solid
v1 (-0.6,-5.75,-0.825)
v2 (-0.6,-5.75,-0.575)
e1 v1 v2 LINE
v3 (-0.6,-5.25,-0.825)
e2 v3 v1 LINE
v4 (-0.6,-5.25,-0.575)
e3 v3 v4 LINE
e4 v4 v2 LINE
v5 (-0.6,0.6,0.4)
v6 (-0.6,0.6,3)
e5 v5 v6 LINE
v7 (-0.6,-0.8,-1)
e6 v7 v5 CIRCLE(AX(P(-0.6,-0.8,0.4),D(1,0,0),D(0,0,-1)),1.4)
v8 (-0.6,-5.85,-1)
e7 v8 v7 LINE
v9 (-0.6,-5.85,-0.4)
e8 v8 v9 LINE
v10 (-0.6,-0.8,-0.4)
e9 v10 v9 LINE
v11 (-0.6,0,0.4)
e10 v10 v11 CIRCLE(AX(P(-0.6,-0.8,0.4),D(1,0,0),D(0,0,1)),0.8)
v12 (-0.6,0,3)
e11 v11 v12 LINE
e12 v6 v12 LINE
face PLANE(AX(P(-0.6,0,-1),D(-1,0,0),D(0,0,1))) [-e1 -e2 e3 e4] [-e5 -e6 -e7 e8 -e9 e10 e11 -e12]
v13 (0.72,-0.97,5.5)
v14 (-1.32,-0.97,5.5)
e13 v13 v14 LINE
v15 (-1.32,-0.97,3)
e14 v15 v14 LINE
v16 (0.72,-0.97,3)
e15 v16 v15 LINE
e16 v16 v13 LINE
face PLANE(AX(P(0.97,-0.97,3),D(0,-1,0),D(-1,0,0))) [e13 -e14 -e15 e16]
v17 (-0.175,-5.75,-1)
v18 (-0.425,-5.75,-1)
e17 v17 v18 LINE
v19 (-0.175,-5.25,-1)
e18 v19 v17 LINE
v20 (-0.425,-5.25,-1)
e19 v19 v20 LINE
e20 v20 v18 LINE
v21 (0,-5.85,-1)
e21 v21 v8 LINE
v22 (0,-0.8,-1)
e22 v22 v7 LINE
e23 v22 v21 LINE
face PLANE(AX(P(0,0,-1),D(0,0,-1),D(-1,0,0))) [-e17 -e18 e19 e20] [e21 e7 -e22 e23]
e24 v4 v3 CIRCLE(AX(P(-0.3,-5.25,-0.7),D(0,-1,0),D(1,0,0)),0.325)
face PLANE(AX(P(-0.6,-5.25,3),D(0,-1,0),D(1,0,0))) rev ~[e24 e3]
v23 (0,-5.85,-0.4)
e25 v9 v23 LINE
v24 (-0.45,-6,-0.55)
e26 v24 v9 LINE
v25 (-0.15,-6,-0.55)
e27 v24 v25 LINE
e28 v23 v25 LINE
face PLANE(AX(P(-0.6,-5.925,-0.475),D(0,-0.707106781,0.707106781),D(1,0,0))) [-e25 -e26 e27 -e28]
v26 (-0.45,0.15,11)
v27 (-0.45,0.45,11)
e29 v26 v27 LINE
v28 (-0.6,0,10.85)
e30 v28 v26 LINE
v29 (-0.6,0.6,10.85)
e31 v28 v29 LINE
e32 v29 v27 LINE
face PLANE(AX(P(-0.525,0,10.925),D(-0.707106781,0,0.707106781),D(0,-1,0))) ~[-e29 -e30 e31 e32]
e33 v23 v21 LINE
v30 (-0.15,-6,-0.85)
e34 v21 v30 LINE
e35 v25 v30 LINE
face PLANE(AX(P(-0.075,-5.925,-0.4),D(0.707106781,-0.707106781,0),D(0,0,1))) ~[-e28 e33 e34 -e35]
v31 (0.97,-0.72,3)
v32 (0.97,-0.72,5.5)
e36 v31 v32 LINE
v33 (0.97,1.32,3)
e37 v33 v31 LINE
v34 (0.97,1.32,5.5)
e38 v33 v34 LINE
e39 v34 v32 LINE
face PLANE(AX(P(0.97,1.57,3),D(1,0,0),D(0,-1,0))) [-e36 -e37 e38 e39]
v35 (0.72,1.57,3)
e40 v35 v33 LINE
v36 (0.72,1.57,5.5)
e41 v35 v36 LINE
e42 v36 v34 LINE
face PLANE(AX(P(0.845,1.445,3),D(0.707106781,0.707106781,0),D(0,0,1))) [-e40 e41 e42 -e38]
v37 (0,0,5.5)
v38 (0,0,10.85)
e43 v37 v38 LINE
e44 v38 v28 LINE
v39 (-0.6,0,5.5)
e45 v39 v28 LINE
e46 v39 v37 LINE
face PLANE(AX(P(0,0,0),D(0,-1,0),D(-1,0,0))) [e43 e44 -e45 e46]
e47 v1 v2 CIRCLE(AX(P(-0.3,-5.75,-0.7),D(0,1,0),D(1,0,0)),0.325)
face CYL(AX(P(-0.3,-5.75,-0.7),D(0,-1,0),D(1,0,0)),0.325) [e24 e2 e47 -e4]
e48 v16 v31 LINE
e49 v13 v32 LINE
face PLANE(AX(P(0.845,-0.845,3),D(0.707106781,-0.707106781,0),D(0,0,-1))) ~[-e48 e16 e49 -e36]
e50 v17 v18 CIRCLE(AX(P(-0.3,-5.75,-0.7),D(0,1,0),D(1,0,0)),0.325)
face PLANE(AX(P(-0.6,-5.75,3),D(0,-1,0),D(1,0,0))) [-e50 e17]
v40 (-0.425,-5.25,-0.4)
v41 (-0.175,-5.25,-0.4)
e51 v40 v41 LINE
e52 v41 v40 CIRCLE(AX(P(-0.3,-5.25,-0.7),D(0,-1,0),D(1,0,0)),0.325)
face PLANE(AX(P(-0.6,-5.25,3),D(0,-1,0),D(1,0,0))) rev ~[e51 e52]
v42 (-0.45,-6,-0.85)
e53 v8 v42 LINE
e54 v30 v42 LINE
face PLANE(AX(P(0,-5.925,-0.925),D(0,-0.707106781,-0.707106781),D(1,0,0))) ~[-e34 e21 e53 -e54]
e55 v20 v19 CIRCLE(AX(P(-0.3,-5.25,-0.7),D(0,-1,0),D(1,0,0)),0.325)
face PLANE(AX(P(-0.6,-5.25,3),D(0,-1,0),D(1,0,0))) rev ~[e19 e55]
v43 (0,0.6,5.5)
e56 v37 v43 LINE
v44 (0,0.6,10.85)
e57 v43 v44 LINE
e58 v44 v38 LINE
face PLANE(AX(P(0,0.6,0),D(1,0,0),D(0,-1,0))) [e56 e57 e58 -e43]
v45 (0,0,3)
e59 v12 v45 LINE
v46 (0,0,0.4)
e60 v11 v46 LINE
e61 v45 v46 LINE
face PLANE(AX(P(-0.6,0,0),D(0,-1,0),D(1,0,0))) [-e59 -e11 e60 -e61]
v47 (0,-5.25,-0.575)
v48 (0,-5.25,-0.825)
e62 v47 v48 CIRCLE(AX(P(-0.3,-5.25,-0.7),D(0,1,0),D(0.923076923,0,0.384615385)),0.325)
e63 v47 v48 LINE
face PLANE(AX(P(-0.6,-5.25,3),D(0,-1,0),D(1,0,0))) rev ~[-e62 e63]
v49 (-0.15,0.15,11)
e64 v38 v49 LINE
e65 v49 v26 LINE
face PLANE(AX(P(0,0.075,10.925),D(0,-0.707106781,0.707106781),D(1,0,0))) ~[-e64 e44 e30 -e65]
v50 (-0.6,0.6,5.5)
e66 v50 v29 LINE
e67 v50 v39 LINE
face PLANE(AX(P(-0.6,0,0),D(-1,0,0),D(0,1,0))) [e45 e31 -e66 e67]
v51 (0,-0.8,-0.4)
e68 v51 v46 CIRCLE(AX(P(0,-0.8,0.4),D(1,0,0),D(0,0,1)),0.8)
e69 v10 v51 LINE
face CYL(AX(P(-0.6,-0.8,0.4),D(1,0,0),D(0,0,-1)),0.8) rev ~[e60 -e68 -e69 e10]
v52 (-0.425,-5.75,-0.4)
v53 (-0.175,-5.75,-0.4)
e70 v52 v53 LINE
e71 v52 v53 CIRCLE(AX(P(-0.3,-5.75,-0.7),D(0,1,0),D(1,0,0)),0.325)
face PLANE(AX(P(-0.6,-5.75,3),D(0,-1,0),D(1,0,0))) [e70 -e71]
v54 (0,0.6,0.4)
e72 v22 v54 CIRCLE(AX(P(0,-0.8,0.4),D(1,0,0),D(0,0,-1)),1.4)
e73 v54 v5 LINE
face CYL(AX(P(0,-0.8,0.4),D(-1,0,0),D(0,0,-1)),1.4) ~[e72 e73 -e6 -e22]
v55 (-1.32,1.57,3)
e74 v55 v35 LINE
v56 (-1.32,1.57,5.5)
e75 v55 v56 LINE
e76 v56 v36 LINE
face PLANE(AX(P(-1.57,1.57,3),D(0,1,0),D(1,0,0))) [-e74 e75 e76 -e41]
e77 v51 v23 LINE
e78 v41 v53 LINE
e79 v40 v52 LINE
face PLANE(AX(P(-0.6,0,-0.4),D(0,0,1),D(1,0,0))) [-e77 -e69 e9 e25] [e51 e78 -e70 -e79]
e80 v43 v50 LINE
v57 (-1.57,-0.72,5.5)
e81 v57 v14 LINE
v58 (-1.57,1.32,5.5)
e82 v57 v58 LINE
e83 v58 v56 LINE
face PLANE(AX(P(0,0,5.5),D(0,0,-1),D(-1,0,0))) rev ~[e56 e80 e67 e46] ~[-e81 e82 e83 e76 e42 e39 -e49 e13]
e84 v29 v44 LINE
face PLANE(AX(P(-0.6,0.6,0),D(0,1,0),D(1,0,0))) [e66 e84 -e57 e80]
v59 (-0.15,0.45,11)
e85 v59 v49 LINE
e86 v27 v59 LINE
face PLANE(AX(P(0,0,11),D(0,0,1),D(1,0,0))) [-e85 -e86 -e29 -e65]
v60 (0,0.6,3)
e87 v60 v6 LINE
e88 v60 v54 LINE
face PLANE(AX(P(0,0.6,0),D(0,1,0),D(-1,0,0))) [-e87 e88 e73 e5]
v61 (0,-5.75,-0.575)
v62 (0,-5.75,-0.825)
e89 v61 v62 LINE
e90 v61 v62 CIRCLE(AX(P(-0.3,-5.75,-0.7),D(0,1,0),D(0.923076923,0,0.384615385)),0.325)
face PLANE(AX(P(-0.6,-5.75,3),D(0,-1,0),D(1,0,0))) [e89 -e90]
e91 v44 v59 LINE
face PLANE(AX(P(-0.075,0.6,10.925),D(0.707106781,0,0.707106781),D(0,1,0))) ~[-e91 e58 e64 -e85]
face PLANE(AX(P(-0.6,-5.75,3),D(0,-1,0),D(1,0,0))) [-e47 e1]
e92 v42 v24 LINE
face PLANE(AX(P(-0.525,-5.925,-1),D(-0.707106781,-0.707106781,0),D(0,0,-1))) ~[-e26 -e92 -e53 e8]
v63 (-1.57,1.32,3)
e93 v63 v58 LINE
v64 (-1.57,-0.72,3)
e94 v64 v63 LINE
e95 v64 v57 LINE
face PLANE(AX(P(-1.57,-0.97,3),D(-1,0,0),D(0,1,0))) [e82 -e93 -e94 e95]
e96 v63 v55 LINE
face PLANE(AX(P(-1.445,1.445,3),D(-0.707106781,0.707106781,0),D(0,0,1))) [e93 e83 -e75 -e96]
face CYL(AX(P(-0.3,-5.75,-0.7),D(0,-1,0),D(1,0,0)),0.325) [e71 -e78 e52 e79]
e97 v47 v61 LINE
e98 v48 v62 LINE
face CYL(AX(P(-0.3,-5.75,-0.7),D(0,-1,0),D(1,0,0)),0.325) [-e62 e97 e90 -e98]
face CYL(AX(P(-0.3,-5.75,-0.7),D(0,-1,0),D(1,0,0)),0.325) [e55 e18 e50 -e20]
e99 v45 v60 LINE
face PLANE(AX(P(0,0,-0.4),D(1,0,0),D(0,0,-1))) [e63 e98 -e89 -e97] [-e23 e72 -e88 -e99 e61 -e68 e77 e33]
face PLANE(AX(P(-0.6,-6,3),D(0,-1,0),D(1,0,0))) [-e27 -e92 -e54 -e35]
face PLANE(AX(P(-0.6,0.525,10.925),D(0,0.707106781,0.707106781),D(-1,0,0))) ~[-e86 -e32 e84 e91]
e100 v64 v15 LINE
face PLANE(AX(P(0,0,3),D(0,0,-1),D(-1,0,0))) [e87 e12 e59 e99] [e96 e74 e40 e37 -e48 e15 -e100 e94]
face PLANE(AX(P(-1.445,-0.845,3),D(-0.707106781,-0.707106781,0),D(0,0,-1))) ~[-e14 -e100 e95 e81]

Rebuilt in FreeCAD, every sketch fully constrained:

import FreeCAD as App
import Part
import Sketcher
from FreeCAD import Vector
Q = App.Units.Quantity


def edges_at(feature, points):
    """Names of the edges that pass closest to the given points."""
    edges = feature.Shape.Edges
    near = lambda p: min(range(len(edges)), key=lambda i: edges[i].distToShape(Part.Vertex(*p))[0])
    return sorted({f"Edge{near(p) + 1}" for p in points})

doc = App.newDocument("Part")
body = doc.addObject("PartDesign::Body", "Body")

sketch1 = body.newObject("Sketcher::SketchObject", "Sketch")
sketch1.AttachmentSupport = (doc.getObject("XY_Plane"), [""])
sketch1.MapMode = "FlatFace"
sketch1.addGeometry([
    Part.LineSegment(Vector(-0.6, 0, 0), Vector(0, 0, 0)),
    Part.LineSegment(Vector(0, 0, 0), Vector(0, 0.6, 0)),
    Part.LineSegment(Vector(0, 0.6, 0), Vector(-0.6, 0.6, 0)),
    Part.LineSegment(Vector(-0.6, 0.6, 0), Vector(-0.6, 0, 0)),
], False)
sketch1.addConstraint([
    Sketcher.Constraint("Coincident", 0, 2, 1, 1),
    Sketcher.Constraint("Coincident", 1, 2, 2, 1),
    Sketcher.Constraint("Coincident", 2, 2, 3, 1),
    Sketcher.Constraint("Coincident", 3, 2, 0, 1),
    Sketcher.Constraint("Horizontal", 0),
    Sketcher.Constraint("Vertical", 1),
    Sketcher.Constraint("Horizontal", 2),
    Sketcher.Constraint("Vertical", 3),
    Sketcher.Constraint("Coincident", 0, 2, -1, 1),
    Sketcher.Constraint("Equal", 2, 1),
    Sketcher.Constraint("DistanceX", 0, 1, 0, 2, Q("0.6 mm")),
])
pad1 = body.newObject("PartDesign::Pad", "Pad")
pad1.Profile = sketch1
pad1.Length = 11

sketch2 = body.newObject("Sketcher::SketchObject", "Sketch001")
sketch2.AttachmentSupport = (doc.getObject("XY_Plane"), [""])
sketch2.MapMode = "FlatFace"
sketch2.AttachmentOffset = App.Placement(Vector(0, 0, 3), App.Rotation())
sketch2.addGeometry([
    Part.LineSegment(Vector(-1.57, -0.97, 0), Vector(-1.57, 1.57, 0)),
    Part.LineSegment(Vector(-1.57, 1.57, 0), Vector(0.97, 1.57, 0)),
    Part.LineSegment(Vector(0.97, 1.57, 0), Vector(0.97, -0.97, 0)),
    Part.LineSegment(Vector(0.97, -0.97, 0), Vector(-1.57, -0.97, 0)),
], False)
sketch2.addConstraint([
    Sketcher.Constraint("Coincident", 0, 2, 1, 1),
    Sketcher.Constraint("Coincident", 1, 2, 2, 1),
    Sketcher.Constraint("Coincident", 2, 2, 3, 1),
    Sketcher.Constraint("Coincident", 3, 2, 0, 1),
    Sketcher.Constraint("Vertical", 0),
    Sketcher.Constraint("Horizontal", 1),
    Sketcher.Constraint("Vertical", 2),
    Sketcher.Constraint("Horizontal", 3),
    Sketcher.Constraint("Equal", 3, 0),
    Sketcher.Constraint("DistanceX", 1, 1, 1, 2, Q("2.54 mm")),
    Sketcher.Constraint("DistanceX", -1, 1, 1, 2, Q("0.97 mm")),
    Sketcher.Constraint("DistanceY", 2, 2, -1, 1, Q("0.97 mm")),
])
pad2 = body.newObject("PartDesign::Pad", "Pad001")
pad2.Profile = sketch2
pad2.Length = 2.5
doc.recompute()

chamfer = body.newObject("PartDesign::Chamfer", "Chamfer")
chamfer.Base = (pad2, edges_at(pad2, [
    (0.97, -0.97, 4.25),
    (-1.57, -0.97, 4.25),
    (-1.57, 1.57, 4.25),
    (0.97, 1.57, 4.25),
]))
chamfer.Size = 0.25

sketch3 = body.newObject("Sketcher::SketchObject", "Sketch002")
sketch3.AttachmentSupport = (doc.getObject("XY_Plane"), [""])
sketch3.MapMode = "FlatFace"
sketch3.addGeometry([
    Part.LineSegment(Vector(-0.6, 0.6, 0), Vector(0, 0.6, 0)),
    Part.LineSegment(Vector(0, 0.6, 0), Vector(0, 0, 0)),
    Part.LineSegment(Vector(0, 0, 0), Vector(-0.6, 0, 0)),
    Part.LineSegment(Vector(-0.6, 0, 0), Vector(-0.6, 0.6, 0)),
], False)
sketch3.addConstraint([
    Sketcher.Constraint("Coincident", 0, 2, 1, 1),
    Sketcher.Constraint("Coincident", 1, 2, 2, 1),
    Sketcher.Constraint("Coincident", 2, 2, 3, 1),
    Sketcher.Constraint("Coincident", 3, 2, 0, 1),
    Sketcher.Constraint("Horizontal", 0),
    Sketcher.Constraint("Vertical", 1),
    Sketcher.Constraint("Horizontal", 2),
    Sketcher.Constraint("Vertical", 3),
    Sketcher.Constraint("Coincident", 1, 2, -1, 1),
    Sketcher.Constraint("Equal", 2, 1),
    Sketcher.Constraint("DistanceX", 0, 1, 0, 2, Q("0.6 mm")),
])
pad3 = body.newObject("PartDesign::Pad", "Pad002")
pad3.Profile = sketch3
pad3.Length = 1
pad3.Reversed = True

sketch4 = body.newObject("Sketcher::SketchObject", "Sketch003")
sketch4.AttachmentSupport = (doc.getObject("XZ_Plane"), [""])
sketch4.MapMode = "FlatFace"
sketch4.addGeometry([
    Part.LineSegment(Vector(-0.6, -1, 0), Vector(0, -1, 0)),
    Part.LineSegment(Vector(0, -1, 0), Vector(0, -0.4, 0)),
    Part.LineSegment(Vector(0, -0.4, 0), Vector(-0.6, -0.4, 0)),
    Part.LineSegment(Vector(-0.6, -0.4, 0), Vector(-0.6, -1, 0)),
], False)
sketch4.addConstraint([
    Sketcher.Constraint("Coincident", 0, 2, 1, 1),
    Sketcher.Constraint("Coincident", 1, 2, 2, 1),
    Sketcher.Constraint("Coincident", 2, 2, 3, 1),
    Sketcher.Constraint("Coincident", 3, 2, 0, 1),
    Sketcher.Constraint("Horizontal", 0),
    Sketcher.Constraint("Vertical", 1),
    Sketcher.Constraint("Horizontal", 2),
    Sketcher.Constraint("Vertical", 3),
    Sketcher.Constraint("PointOnObject", 0, 2, -2),
    Sketcher.Constraint("Equal", 2, 1),
    Sketcher.Constraint("DistanceX", 0, 1, 0, 2, Q("0.6 mm")),
    Sketcher.Constraint("DistanceY", 0, 2, -1, 1, Q("1 mm")),
])
pad4 = body.newObject("PartDesign::Pad", "Pad003")
pad4.Profile = sketch4
pad4.Length = 6
doc.recompute()

chamfer2 = body.newObject("PartDesign::Chamfer", "Chamfer001")
chamfer2.Base = (pad4, edges_at(pad4, [
    (-0.6, 0.3, 11),
    (-0.3, 0, 11),
    (0, 0.3, 11),
    (-0.3, 0.6, 11),
    (0, -6, -0.7),
    (-0.3, -6, -0.4),
    (-0.6, -6, -0.7),
    (-0.3, -6, -1),
]))
chamfer2.Size = 0.15
doc.recompute()

fillet = body.newObject("PartDesign::Fillet", "Fillet")
fillet.Base = (chamfer2, edges_at(chamfer2, [(-0.3, 0, -0.4)]))
fillet.Radius = 0.8
doc.recompute()

fillet2 = body.newObject("PartDesign::Fillet", "Fillet001")
fillet2.Base = (fillet, edges_at(fillet, [(-0.3, 0.6, -1)]))
fillet2.Radius = 1.4

sketch5 = body.newObject("Sketcher::SketchObject", "Sketch004")
sketch5.AttachmentSupport = (doc.getObject("XZ_Plane"), [""])
sketch5.MapMode = "FlatFace"
sketch5.AttachmentOffset = App.Placement(Vector(0, 0, 5.75), App.Rotation())
sketch5.addGeometry(Part.Circle(Vector(-0.3, -0.7, 0), Vector(0, 0, 1), 0.325), False)
sketch5.addConstraint([
    Sketcher.Constraint("Diameter", 0, Q("0.65 mm")),
    Sketcher.Constraint("DistanceX", 0, 3, -1, 1, Q("0.3 mm")),
    Sketcher.Constraint("DistanceY", 0, 3, -1, 1, Q("0.7 mm")),
])
pad5 = body.newObject("PartDesign::Pad", "Pad004")
pad5.Profile = sketch5
pad5.Length = 0.5
pad5.Reversed = True

doc.recompute()
